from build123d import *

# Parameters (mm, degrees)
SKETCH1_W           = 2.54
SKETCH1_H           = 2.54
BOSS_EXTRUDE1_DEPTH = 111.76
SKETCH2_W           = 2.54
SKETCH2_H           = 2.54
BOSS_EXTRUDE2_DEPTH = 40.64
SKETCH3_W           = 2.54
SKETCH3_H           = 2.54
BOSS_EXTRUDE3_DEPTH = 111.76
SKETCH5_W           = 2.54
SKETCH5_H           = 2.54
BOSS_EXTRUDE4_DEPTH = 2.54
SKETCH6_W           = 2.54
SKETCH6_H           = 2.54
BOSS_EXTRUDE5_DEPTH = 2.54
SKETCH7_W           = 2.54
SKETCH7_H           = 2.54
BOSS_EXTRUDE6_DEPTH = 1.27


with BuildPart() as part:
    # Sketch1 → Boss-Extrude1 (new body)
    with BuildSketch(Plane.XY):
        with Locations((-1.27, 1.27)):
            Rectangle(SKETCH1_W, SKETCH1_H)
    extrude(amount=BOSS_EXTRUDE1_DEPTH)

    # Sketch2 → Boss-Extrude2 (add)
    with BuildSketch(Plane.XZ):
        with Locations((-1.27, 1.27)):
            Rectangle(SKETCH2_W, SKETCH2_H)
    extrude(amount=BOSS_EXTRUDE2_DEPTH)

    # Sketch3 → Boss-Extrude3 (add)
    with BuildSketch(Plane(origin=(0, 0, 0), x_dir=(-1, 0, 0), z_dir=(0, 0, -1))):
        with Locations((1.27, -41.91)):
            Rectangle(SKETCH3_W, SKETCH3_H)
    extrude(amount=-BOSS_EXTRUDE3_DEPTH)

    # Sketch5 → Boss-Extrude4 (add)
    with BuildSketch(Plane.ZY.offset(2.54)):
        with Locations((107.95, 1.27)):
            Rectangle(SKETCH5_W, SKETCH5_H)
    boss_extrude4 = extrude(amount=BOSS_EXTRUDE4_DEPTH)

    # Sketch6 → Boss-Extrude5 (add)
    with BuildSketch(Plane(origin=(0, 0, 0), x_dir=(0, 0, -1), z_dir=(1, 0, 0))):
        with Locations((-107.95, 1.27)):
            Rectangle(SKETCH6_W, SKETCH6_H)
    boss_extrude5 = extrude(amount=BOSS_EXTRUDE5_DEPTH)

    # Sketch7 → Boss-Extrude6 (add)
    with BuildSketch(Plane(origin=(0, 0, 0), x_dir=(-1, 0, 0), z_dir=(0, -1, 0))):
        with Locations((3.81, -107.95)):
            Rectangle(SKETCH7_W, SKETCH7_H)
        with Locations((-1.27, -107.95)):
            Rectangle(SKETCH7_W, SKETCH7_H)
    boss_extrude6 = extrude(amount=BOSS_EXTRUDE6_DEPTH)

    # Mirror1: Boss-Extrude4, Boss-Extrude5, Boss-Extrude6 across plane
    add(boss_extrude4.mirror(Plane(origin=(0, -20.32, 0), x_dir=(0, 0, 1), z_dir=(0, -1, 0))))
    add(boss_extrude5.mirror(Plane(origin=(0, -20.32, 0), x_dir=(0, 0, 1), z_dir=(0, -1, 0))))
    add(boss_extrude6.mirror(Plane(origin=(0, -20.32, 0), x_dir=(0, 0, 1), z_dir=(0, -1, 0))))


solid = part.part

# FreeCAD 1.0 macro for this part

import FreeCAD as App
import Part
import Sketcher

V = App.Vector
Q = App.Units.Quantity

doc = App.newDocument("Part")
body = doc.addObject("PartDesign::Body", "Body")

# Sketch on XY plane
sketch1 = doc.addObject("Sketcher::SketchObject", "Sketch")
body.addObject(sketch1)
sketch1.AttachmentSupport = (doc.XY_Plane, [""])
sketch1.MapMode = "FlatFace"
sketch1.addGeometry([
    Part.LineSegment(V(-2.54, 2.54, 0), V(-2.54, 0, 0)),
    Part.LineSegment(V(-2.54, 0, 0), V(0, 0, 0)),
    Part.LineSegment(V(0, 0, 0), V(0, 2.54, 0)),
    Part.LineSegment(V(0, 2.54, 0), V(-2.54, 2.54, 0)),
], False)
sketch1.addConstraint([
    Sketcher.Constraint("Coincident", 0, 2, 1, 1),
    Sketcher.Constraint("Coincident", 1, 2, 2, 1),
    Sketcher.Constraint("Coincident", 2, 2, 3, 1),
    Sketcher.Constraint("Coincident", 3, 2, 0, 1),
    Sketcher.Constraint("Vertical", 0),
    Sketcher.Constraint("Horizontal", 1),
    Sketcher.Constraint("Vertical", 2),
    Sketcher.Constraint("Horizontal", 3),
    Sketcher.Constraint("Coincident", 1, 2, -1, 1),
    Sketcher.Constraint("Equal", 3, 0),
    Sketcher.Constraint("DistanceX", 1, 1, 1, 2, Q("0.1 in")),
])
pad1 = doc.addObject("PartDesign::Pad", "Pad")
body.addObject(pad1)
pad1.Profile = sketch1
pad1.Length = Q("4.4 in")

# Sketch on XZ plane
sketch2 = doc.addObject("Sketcher::SketchObject", "Sketch001")
body.addObject(sketch2)
sketch2.AttachmentSupport = (doc.XZ_Plane, [""])
sketch2.MapMode = "FlatFace"
sketch2.addGeometry([
    Part.LineSegment(V(-2.54, 2.54, 0), V(-2.54, 0, 0)),
    Part.LineSegment(V(-2.54, 0, 0), V(0, 0, 0)),
    Part.LineSegment(V(0, 0, 0), V(0, 2.54, 0)),
    Part.LineSegment(V(0, 2.54, 0), V(-2.54, 2.54, 0)),
], False)
sketch2.addConstraint([
    Sketcher.Constraint("Coincident", 0, 2, 1, 1),
    Sketcher.Constraint("Coincident", 1, 2, 2, 1),
    Sketcher.Constraint("Coincident", 2, 2, 3, 1),
    Sketcher.Constraint("Coincident", 3, 2, 0, 1),
    Sketcher.Constraint("Vertical", 0),
    Sketcher.Constraint("Horizontal", 1),
    Sketcher.Constraint("Vertical", 2),
    Sketcher.Constraint("Horizontal", 3),
    Sketcher.Constraint("Coincident", 1, 2, -1, 1),
    Sketcher.Constraint("Equal", 3, 0),
    Sketcher.Constraint("DistanceX", 1, 1, 1, 2, Q("0.1 in")),
])
pad2 = doc.addObject("PartDesign::Pad", "Pad001")
body.addObject(pad2)
pad2.Profile = sketch2
pad2.Length = Q("1.6 in")

# Sketch on XY plane
sketch3 = doc.addObject("Sketcher::SketchObject", "Sketch002")
body.addObject(sketch3)
sketch3.AttachmentSupport = (doc.XY_Plane, [""])
sketch3.MapMode = "FlatFace"
sketch3.addGeometry([
    Part.LineSegment(V(0, -40.64, 0), V(0, -43.18, 0)),
    Part.LineSegment(V(0, -43.18, 0), V(-2.54, -43.18, 0)),
    Part.LineSegment(V(-2.54, -43.18, 0), V(-2.54, -40.64, 0)),
    Part.LineSegment(V(-2.54, -40.64, 0), V(0, -40.64, 0)),
], False)
sketch3.addConstraint([
    Sketcher.Constraint("Coincident", 0, 2, 1, 1),
    Sketcher.Constraint("Coincident", 1, 2, 2, 1),
    Sketcher.Constraint("Coincident", 2, 2, 3, 1),
    Sketcher.Constraint("Coincident", 3, 2, 0, 1),
    Sketcher.Constraint("Vertical", 0),
    Sketcher.Constraint("Horizontal", 1),
    Sketcher.Constraint("Vertical", 2),
    Sketcher.Constraint("Horizontal", 3),
    Sketcher.Constraint("PointOnObject", 0, 2, -2),
    Sketcher.Constraint("Equal", 3, 0),
    Sketcher.Constraint("DistanceX", 1, 2, 1, 1, Q("0.1 in")),
    Sketcher.Constraint("DistanceY", 0, 2, -1, 1, Q("1.7 in")),
])
pad3 = doc.addObject("PartDesign::Pad", "Pad002")
body.addObject(pad3)
pad3.Profile = sketch3
pad3.Length = Q("4.4 in")

# Sketch on YZ plane
sketch4 = doc.addObject("Sketcher::SketchObject", "Sketch003")
body.addObject(sketch4)
sketch4.AttachmentSupport = (doc.YZ_Plane, [""])
sketch4.MapMode = "FlatFace"
sketch4.AttachmentOffset = App.Placement(V(0, 0, -0.1 * 25.4), App.Rotation())
sketch4.addGeometry([
    Part.LineSegment(V(2.54, 106.68, 0), V(0, 106.68, 0)),
    Part.LineSegment(V(0, 106.68, 0), V(0, 109.22, 0)),
    Part.LineSegment(V(0, 109.22, 0), V(2.54, 109.22, 0)),
    Part.LineSegment(V(2.54, 109.22, 0), V(2.54, 106.68, 0)),
], False)
sketch4.addConstraint([
    Sketcher.Constraint("Coincident", 0, 2, 1, 1),
    Sketcher.Constraint("Coincident", 1, 2, 2, 1),
    Sketcher.Constraint("Coincident", 2, 2, 3, 1),
    Sketcher.Constraint("Coincident", 3, 2, 0, 1),
    Sketcher.Constraint("Horizontal", 0),
    Sketcher.Constraint("Vertical", 1),
    Sketcher.Constraint("Horizontal", 2),
    Sketcher.Constraint("Vertical", 3),
    Sketcher.Constraint("PointOnObject", 0, 2, -2),
    Sketcher.Constraint("Equal", 2, 1),
    Sketcher.Constraint("DistanceX", 0, 2, 0, 1, Q("0.1 in")),
    Sketcher.Constraint("DistanceY", -1, 1, 0, 2, Q("4.2 in")),
])
pad4 = doc.addObject("PartDesign::Pad", "Pad003")
body.addObject(pad4)
pad4.Profile = sketch4
pad4.Length = Q("0.1 in")
pad4.Reversed = True

# Sketch on YZ plane
sketch5 = doc.addObject("Sketcher::SketchObject", "Sketch004")
body.addObject(sketch5)
sketch5.AttachmentSupport = (doc.YZ_Plane, [""])
sketch5.MapMode = "FlatFace"
sketch5.addGeometry([
    Part.LineSegment(V(2.54, 109.22, 0), V(0, 109.22, 0)),
    Part.LineSegment(V(0, 109.22, 0), V(0, 106.68, 0)),
    Part.LineSegment(V(0, 106.68, 0), V(2.54, 106.68, 0)),
    Part.LineSegment(V(2.54, 106.68, 0), V(2.54, 109.22, 0)),
], False)
sketch5.addConstraint([
    Sketcher.Constraint("Coincident", 0, 2, 1, 1),
    Sketcher.Constraint("Coincident", 1, 2, 2, 1),
    Sketcher.Constraint("Coincident", 2, 2, 3, 1),
    Sketcher.Constraint("Coincident", 3, 2, 0, 1),
    Sketcher.Constraint("Horizontal", 0),
    Sketcher.Constraint("Vertical", 1),
    Sketcher.Constraint("Horizontal", 2),
    Sketcher.Constraint("Vertical", 3),
    Sketcher.Constraint("PointOnObject", 0, 2, -2),
    Sketcher.Constraint("Equal", 2, 1),
    Sketcher.Constraint("DistanceX", 0, 2, 0, 1, Q("0.1 in")),
    Sketcher.Constraint("DistanceY", -1, 1, 0, 2, Q("4.3 in")),
])
pad5 = doc.addObject("PartDesign::Pad", "Pad004")
body.addObject(pad5)
pad5.Profile = sketch5
pad5.Length = Q("0.1 in")

# Sketch on XZ plane
sketch6 = doc.addObject("Sketcher::SketchObject", "Sketch005")
body.addObject(sketch6)
sketch6.AttachmentSupport = (doc.XZ_Plane, [""])
sketch6.MapMode = "FlatFace"
sketch6.addGeometry([
    Part.LineSegment(V(-2.54, 106.68, 0), V(-2.54, 109.22, 0)),  # 0
    Part.LineSegment(V(-2.54, 109.22, 0), V(-5.08, 109.22, 0)),  # 1
    Part.LineSegment(V(-5.08, 109.22, 0), V(-5.08, 106.68, 0)),  # 2
    Part.LineSegment(V(-5.08, 106.68, 0), V(-2.54, 106.68, 0)),  # 3
    Part.LineSegment(V(2.54, 106.68, 0), V(2.54, 109.22, 0)),  # 4
    Part.LineSegment(V(2.54, 109.22, 0), V(0, 109.22, 0)),  # 5
    Part.LineSegment(V(0, 109.22, 0), V(0, 106.68, 0)),  # 6
    Part.LineSegment(V(0, 106.68, 0), V(2.54, 106.68, 0)),  # 7
], False)
sketch6.addConstraint([
    Sketcher.Constraint("Coincident", 0, 2, 1, 1),
    Sketcher.Constraint("Coincident", 1, 2, 2, 1),
    Sketcher.Constraint("Coincident", 2, 2, 3, 1),
    Sketcher.Constraint("Coincident", 3, 2, 0, 1),
    Sketcher.Constraint("Coincident", 4, 2, 5, 1),
    Sketcher.Constraint("Coincident", 5, 2, 6, 1),
    Sketcher.Constraint("Coincident", 6, 2, 7, 1),
    Sketcher.Constraint("Coincident", 7, 2, 4, 1),
    Sketcher.Constraint("Vertical", 0),
    Sketcher.Constraint("Horizontal", 1),
    Sketcher.Constraint("Vertical", 2),
    Sketcher.Constraint("Horizontal", 3),
    Sketcher.Constraint("Vertical", 4),
    Sketcher.Constraint("Horizontal", 5),
    Sketcher.Constraint("Vertical", 6),
    Sketcher.Constraint("Horizontal", 7),
    Sketcher.Constraint("Symmetric", 0, 2, 4, 2, -2),
    Sketcher.Constraint("PointOnObject", 5, 2, -2),
    Sketcher.Constraint("Horizontal", 3, 2, 6, 2),
    Sketcher.Constraint("Equal", 3, 5),
    Sketcher.Constraint("Equal", 7, 0),
    Sketcher.Constraint("DistanceX", 1, 2, 1, 1, Q("0.1 in")),
    Sketcher.Constraint("DistanceY", -1, 1, 0, 2, Q("4.3 in")),
])
pad6 = doc.addObject("PartDesign::Pad", "Pad005")
body.addObject(pad6)
pad6.Profile = sketch6
pad6.Length = Q("0.05 in")
doc.recompute()

datumplane = doc.addObject("PartDesign::Plane", "DatumPlane")
body.addObject(datumplane)
datumplane.AttachmentSupport = (doc.XZ_Plane, [""])
datumplane.MapMode = "FlatFace"
datumplane.AttachmentOffset = App.Placement(V(0, 0, 0.8 * 25.4), App.Rotation())
mirrored = doc.addObject("PartDesign::Mirrored", "Mirrored")
body.addObject(mirrored)
mirrored.Originals = [pad4, pad5, pad6]
mirrored.MirrorPlane = (datumplane, [""])
body.Tip = mirrored

doc.recompute()
